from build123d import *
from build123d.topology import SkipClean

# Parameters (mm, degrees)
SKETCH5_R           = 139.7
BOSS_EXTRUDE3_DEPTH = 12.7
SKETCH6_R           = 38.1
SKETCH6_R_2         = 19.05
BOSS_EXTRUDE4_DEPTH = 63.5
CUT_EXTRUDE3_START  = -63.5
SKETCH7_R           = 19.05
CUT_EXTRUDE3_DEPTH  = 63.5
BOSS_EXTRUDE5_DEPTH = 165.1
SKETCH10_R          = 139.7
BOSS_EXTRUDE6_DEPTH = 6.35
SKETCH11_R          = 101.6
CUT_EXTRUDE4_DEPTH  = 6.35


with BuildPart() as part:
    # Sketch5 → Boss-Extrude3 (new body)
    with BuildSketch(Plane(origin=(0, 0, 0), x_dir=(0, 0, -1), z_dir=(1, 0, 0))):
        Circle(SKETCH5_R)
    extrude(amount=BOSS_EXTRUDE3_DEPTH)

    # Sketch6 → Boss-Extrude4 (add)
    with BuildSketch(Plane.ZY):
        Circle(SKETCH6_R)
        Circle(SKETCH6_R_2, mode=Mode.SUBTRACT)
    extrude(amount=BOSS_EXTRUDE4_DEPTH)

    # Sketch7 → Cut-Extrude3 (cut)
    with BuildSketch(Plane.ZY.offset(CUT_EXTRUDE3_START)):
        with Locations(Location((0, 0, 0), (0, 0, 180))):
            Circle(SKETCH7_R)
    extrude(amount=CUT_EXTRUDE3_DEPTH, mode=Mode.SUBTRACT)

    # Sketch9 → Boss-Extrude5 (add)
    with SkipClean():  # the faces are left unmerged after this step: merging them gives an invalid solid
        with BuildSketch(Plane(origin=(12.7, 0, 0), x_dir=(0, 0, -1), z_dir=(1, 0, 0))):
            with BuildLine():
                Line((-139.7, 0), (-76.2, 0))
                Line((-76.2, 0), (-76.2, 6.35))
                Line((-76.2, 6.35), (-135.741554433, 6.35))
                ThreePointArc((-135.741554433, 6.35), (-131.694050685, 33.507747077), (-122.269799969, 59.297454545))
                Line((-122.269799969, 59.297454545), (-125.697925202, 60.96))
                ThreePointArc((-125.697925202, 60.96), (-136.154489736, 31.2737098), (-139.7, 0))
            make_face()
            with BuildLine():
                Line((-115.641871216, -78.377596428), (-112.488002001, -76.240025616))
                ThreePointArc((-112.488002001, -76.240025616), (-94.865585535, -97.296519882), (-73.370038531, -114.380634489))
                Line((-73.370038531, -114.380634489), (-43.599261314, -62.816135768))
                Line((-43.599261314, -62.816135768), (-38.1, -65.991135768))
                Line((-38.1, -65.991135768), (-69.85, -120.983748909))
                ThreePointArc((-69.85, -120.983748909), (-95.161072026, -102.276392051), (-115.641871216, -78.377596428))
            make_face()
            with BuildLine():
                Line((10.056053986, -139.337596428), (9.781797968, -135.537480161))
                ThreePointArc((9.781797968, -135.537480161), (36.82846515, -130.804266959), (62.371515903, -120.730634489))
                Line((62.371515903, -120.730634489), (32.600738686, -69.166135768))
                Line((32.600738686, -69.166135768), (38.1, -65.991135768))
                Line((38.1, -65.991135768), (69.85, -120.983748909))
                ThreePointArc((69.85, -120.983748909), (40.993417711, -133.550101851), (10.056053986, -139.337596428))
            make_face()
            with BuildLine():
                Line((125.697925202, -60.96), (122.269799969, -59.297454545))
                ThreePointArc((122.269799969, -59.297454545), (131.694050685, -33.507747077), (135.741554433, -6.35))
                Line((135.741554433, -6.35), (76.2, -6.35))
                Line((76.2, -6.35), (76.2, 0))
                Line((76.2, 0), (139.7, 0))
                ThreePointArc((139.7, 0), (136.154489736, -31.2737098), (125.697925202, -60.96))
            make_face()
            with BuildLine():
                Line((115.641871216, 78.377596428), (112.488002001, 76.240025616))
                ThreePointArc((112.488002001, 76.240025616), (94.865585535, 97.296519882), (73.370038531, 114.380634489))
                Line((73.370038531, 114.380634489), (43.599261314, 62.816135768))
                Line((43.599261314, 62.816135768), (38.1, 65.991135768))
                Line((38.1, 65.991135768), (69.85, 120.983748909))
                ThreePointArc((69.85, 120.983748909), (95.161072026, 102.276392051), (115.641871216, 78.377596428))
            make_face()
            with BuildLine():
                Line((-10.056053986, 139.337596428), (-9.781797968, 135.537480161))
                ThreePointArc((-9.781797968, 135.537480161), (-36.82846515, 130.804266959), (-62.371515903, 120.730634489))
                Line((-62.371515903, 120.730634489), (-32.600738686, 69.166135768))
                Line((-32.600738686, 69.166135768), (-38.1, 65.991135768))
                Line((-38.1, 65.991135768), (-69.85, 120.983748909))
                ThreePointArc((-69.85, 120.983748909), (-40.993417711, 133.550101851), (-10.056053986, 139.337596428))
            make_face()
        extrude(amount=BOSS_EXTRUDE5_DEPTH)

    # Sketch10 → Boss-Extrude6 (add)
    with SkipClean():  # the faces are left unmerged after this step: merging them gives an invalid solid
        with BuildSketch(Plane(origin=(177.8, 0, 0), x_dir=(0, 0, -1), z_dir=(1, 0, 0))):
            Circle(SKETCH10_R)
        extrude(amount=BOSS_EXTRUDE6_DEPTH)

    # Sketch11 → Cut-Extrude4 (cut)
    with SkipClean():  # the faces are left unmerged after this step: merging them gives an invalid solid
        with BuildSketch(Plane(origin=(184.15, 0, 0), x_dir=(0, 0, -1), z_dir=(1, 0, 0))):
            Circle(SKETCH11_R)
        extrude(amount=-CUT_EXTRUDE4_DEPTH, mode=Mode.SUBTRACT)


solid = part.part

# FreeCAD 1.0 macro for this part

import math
import FreeCAD as App
import Part
import Sketcher
from FreeCAD import Vector
Q = App.Units.Quantity

doc = App.newDocument("Part")
body = doc.addObject("PartDesign::Body", "Body")

# Sketch on YZ plane
sketch1 = body.newObject("Sketcher::SketchObject", "Sketch")
sketch1.AttachmentSupport = (doc.getObject("YZ_Plane"), [""])
sketch1.MapMode = "FlatFace"
sketch1.addGeometry(Part.Circle(Vector(0, 0, 0), Vector(0, 0, 1), 140), False)
sketch1.addConstraint([
    Sketcher.Constraint("Coincident", 0, 3, -1, 1),
    Sketcher.Constraint("Diameter", 0, Q("11 in")),
])
pad1 = body.newObject("PartDesign::Pad", "Pad")
pad1.Profile = sketch1
pad1.Length = Q("0.5 in")

# Sketch on YZ plane
sketch2 = body.newObject("Sketcher::SketchObject", "Sketch001")
sketch2.AttachmentSupport = (doc.getObject("YZ_Plane"), [""])
sketch2.MapMode = "FlatFace"
sketch2.addGeometry([
    Part.Circle(Vector(0, 0, 0), Vector(0, 0, 1), 38),
    Part.Circle(Vector(0, 0, 0), Vector(0, 0, 1), 19),
], False)
sketch2.addConstraint([
    Sketcher.Constraint("Coincident", 0, 3, -1, 1),
    Sketcher.Constraint("Coincident", 1, 3, -1, 1),
    Sketcher.Constraint("Diameter", 0, Q("3 in")),
    Sketcher.Constraint("Diameter", 1, Q("1.5 in")),
])
pad2 = body.newObject("PartDesign::Pad", "Pad001")
pad2.Profile = sketch2
pad2.Length = Q("2.5 in")
pad2.Reversed = True

# Sketch on YZ plane
sketch3 = body.newObject("Sketcher::SketchObject", "Sketch002")
sketch3.AttachmentSupport = (doc.getObject("YZ_Plane"), [""])
sketch3.MapMode = "FlatFace"
sketch3.AttachmentOffset = App.Placement(Vector(0, 0, 2.5 * 25.4), App.Rotation())
sketch3.addGeometry(Part.Circle(Vector(0, 0, 0), Vector(0, 0, 1), 19), False)
sketch3.addConstraint([
    Sketcher.Constraint("Coincident", 0, 3, -1, 1),
    Sketcher.Constraint("Diameter", 0, Q("1.5 in")),
])
pocket1 = body.newObject("PartDesign::Pocket", "Pocket")
pocket1.Profile = sketch3
pocket1.Length = Q("2.5 in")

# Sketch on YZ plane
sketch4 = body.newObject("Sketcher::SketchObject", "Sketch003")
sketch4.AttachmentSupport = (doc.getObject("YZ_Plane"), [""])
sketch4.MapMode = "FlatFace"
sketch4.AttachmentOffset = App.Placement(Vector(0, 0, 0.5 * 25.4), App.Rotation())
sketch4.addGeometry([
    Part.LineSegment(Vector(0, 139.7, 0), Vector(0, 76.2, 0)),  # 0
    Part.LineSegment(Vector(0, 76.2, 0), Vector(6.3, 76.2, 0)),  # 1
    Part.LineSegment(Vector(6.3, 76.2, 0), Vector(6.3, 135.7, 0)),  # 2
    Part.ArcOfCircle(Part.Circle(Vector(0, 0, 0), Vector(0, 0, 1), 135.9), math.radians(64), math.radians(87)),  # 3
    Part.LineSegment(Vector(59.3, 122.3, 0), Vector(61, 125.7, 0)),  # 4
    Part.ArcOfCircle(Part.Circle(Vector(0, 0, 0), Vector(0, 0, 1), 139.7), math.radians(64), math.radians(90)),  # 5
    Part.LineSegment(Vector(-76.2, 112.5, 0), Vector(-78.4, 115.6, 0)),  # 6
    Part.ArcOfCircle(Part.Circle(Vector(0, 0, 0), Vector(0, 0, 1), 139.7), math.radians(124), math.radians(150)),  # 7
    Part.LineSegment(Vector(-121, 69.8, 0), Vector(-66, 38.1, 0)),  # 8
    Part.LineSegment(Vector(-66, 38.1, 0), Vector(-62.8, 43.6, 0)),  # 9
    Part.LineSegment(Vector(-62.8, 43.6, 0), Vector(-114.4, 73.4, 0)),  # 10
    Part.ArcOfCircle(Part.Circle(Vector(0, 0, 0), Vector(0, 0, 1), 135.9), math.radians(124), math.radians(147)),  # 11
    Part.LineSegment(Vector(-135.5, -9.8, 0), Vector(-139.3, -10.1, 0)),  # 12
    Part.ArcOfCircle(Part.Circle(Vector(0, 0, 0), Vector(0, 0, 1), 139.7), math.radians(-176), math.radians(-150)),  # 13
    Part.LineSegment(Vector(-121, -69.8, 0), Vector(-66, -38.1, 0)),  # 14
    Part.LineSegment(Vector(-66, -38.1, 0), Vector(-69.2, -32.6, 0)),  # 15
    Part.LineSegment(Vector(-69.2, -32.6, 0), Vector(-120.7, -62.4, 0)),  # 16
    Part.ArcOfCircle(Part.Circle(Vector(0, 0, 0), Vector(0, 0, 1), 135.9), math.radians(-176), math.radians(-153)),  # 17
    Part.LineSegment(Vector(-59.3, -122.3, 0), Vector(-61, -125.7, 0)),  # 18
    Part.ArcOfCircle(Part.Circle(Vector(0, 0, 0), Vector(0, 0, 1), 139.7), math.radians(-116), math.radians(-90)),  # 19
    Part.LineSegment(Vector(0, -139.7, 0), Vector(0, -76.2, 0)),  # 20
    Part.LineSegment(Vector(0, -76.2, 0), Vector(-6.3, -76.2, 0)),  # 21
    Part.LineSegment(Vector(-6.3, -76.2, 0), Vector(-6.3, -135.7, 0)),  # 22
    Part.ArcOfCircle(Part.Circle(Vector(0, 0, 0), Vector(0, 0, 1), 135.9), math.radians(-116), math.radians(-93)),  # 23
    Part.LineSegment(Vector(76.2, -112.5, 0), Vector(78.4, -115.6, 0)),  # 24
    Part.ArcOfCircle(Part.Circle(Vector(0, 0, 0), Vector(0, 0, 1), 139.7), math.radians(-56), math.radians(-30)),  # 25
    Part.LineSegment(Vector(121, -69.8, 0), Vector(66, -38.1, 0)),  # 26
    Part.LineSegment(Vector(66, -38.1, 0), Vector(62.8, -43.6, 0)),  # 27
    Part.LineSegment(Vector(62.8, -43.6, 0), Vector(114.4, -73.4, 0)),  # 28
    Part.ArcOfCircle(Part.Circle(Vector(0, 0, 0), Vector(0, 0, 1), 135.9), math.radians(-56), math.radians(-33)),  # 29
    Part.LineSegment(Vector(135.5, 9.8, 0), Vector(139.3, 10.1, 0)),  # 30
    Part.ArcOfCircle(Part.Circle(Vector(0, 0, 0), Vector(0, 0, 1), 139.7), math.radians(4), math.radians(30)),  # 31
    Part.LineSegment(Vector(121, 69.8, 0), Vector(66, 38.1, 0)),  # 32
    Part.LineSegment(Vector(66, 38.1, 0), Vector(69.2, 32.6, 0)),  # 33
    Part.LineSegment(Vector(69.2, 32.6, 0), Vector(120.7, 62.4, 0)),  # 34
    Part.ArcOfCircle(Part.Circle(Vector(0, 0, 0), Vector(0, 0, 1), 135.9), math.radians(4), math.radians(27)),  # 35
], False)
sketch4.addConstraint([
    Sketcher.Constraint("Coincident", 0, 2, 1, 1),
    Sketcher.Constraint("Coincident", 1, 2, 2, 1),
    Sketcher.Constraint("Coincident", 2, 2, 3, 2),
    Sketcher.Constraint("Coincident", 3, 1, 4, 1),
    Sketcher.Constraint("Coincident", 4, 2, 5, 1),
    Sketcher.Constraint("Coincident", 5, 2, 0, 1),
    Sketcher.Constraint("Coincident", 6, 2, 7, 1),
    Sketcher.Constraint("Coincident", 7, 2, 8, 1),
    Sketcher.Constraint("Coincident", 8, 2, 9, 1),
    Sketcher.Constraint("Coincident", 9, 2, 10, 1),
    Sketcher.Constraint("Coincident", 10, 2, 11, 2),
    Sketcher.Constraint("Coincident", 11, 1, 6, 1),
    Sketcher.Constraint("Coincident", 12, 2, 13, 1),
    Sketcher.Constraint("Coincident", 13, 2, 14, 1),
    Sketcher.Constraint("Coincident", 14, 2, 15, 1),
    Sketcher.Constraint("Coincident", 15, 2, 16, 1),
    Sketcher.Constraint("Coincident", 16, 2, 17, 2),
    Sketcher.Constraint("Coincident", 17, 1, 12, 1),
    Sketcher.Constraint("Coincident", 18, 2, 19, 1),
    Sketcher.Constraint("Coincident", 19, 2, 20, 1),
    Sketcher.Constraint("Coincident", 20, 2, 21, 1),
    Sketcher.Constraint("Coincident", 21, 2, 22, 1),
    Sketcher.Constraint("Coincident", 22, 2, 23, 2),
    Sketcher.Constraint("Coincident", 23, 1, 18, 1),
    Sketcher.Constraint("Coincident", 24, 2, 25, 1),
    Sketcher.Constraint("Coincident", 25, 2, 26, 1),
    Sketcher.Constraint("Coincident", 26, 2, 27, 1),
    Sketcher.Constraint("Coincident", 27, 2, 28, 1),
    Sketcher.Constraint("Coincident", 28, 2, 29, 2),
    Sketcher.Constraint("Coincident", 29, 1, 24, 1),
    Sketcher.Constraint("Coincident", 30, 2, 31, 1),
    Sketcher.Constraint("Coincident", 31, 2, 32, 1),
    Sketcher.Constraint("Coincident", 32, 2, 33, 1),
    Sketcher.Constraint("Coincident", 33, 2, 34, 1),
    Sketcher.Constraint("Coincident", 34, 2, 35, 2),
    Sketcher.Constraint("Coincident", 35, 1, 30, 1),
    Sketcher.Constraint("Vertical", 0),
    Sketcher.Constraint("Horizontal", 1),
    Sketcher.Constraint("Vertical", 2),
    Sketcher.Constraint("Vertical", 20),
    Sketcher.Constraint("Horizontal", 21),
    Sketcher.Constraint("Vertical", 22),
    Sketcher.Constraint("Coincident", 3, 3, -1, 1),
    Sketcher.Constraint("Coincident", 5, 3, -1, 1),
    Sketcher.Constraint("Coincident", 7, 3, -1, 1),
    Sketcher.Constraint("Coincident", 11, 3, -1, 1),
    Sketcher.Constraint("Coincident", 13, 3, -1, 1),
    Sketcher.Constraint("Coincident", 17, 3, -1, 1),
    Sketcher.Constraint("Coincident", 19, 3, -1, 1),
    Sketcher.Constraint("Coincident", 23, 3, -1, 1),
    Sketcher.Constraint("Coincident", 25, 3, -1, 1),
    Sketcher.Constraint("Coincident", 29, 3, -1, 1),
    Sketcher.Constraint("Coincident", 31, 3, -1, 1),
    Sketcher.Constraint("Coincident", 35, 3, -1, 1),
    Sketcher.Constraint("Equal", 5, 7),
    Sketcher.Constraint("Equal", 3, 11),
    Sketcher.Constraint("Equal", 7, 13),
    Sketcher.Constraint("Equal", 11, 17),
    Sketcher.Constraint("Equal", 13, 19),
    Sketcher.Constraint("Equal", 17, 23),
    Sketcher.Constraint("Equal", 19, 25),
    Sketcher.Constraint("Equal", 23, 29),
    Sketcher.Constraint("Equal", 25, 31),
    Sketcher.Constraint("Equal", 29, 35),
    Sketcher.Constraint("Symmetric", 0, 2, 20, 2, -1, 1),
    Sketcher.Constraint("Symmetric", 8, 2, 26, 2, -1, 1),
    Sketcher.Constraint("Symmetric", 9, 2, 27, 2, -1, 1),
    Sketcher.Constraint("Symmetric", 14, 2, 32, 2, -1, 1),
    Sketcher.Constraint("Symmetric", 15, 2, 33, 2, -1, 1),
    Sketcher.Constraint("Symmetric", 14, 2, 26, 2, -2),
    Sketcher.Constraint("PointOnObject", 0, 2, -2),
    Sketcher.Constraint("Perpendicular", 8, 9),
    Sketcher.Constraint("Perpendicular", 9, 10),
    Sketcher.Constraint("Perpendicular", 14, 15),
    Sketcher.Constraint("Perpendicular", 15, 16),
    Sketcher.Constraint("Parallel", 4, 18),
    Sketcher.Constraint("Parallel", 6, 24),
    Sketcher.Constraint("Parallel", 10, 26),
    Sketcher.Constraint("Perpendicular", 27, 28),
    Sketcher.Constraint("Parallel", 12, 30),
    Sketcher.Constraint("Parallel", 16, 32),
    Sketcher.Constraint("Perpendicular", 33, 34),
    Sketcher.Constraint("Horizontal", 13, 2, 25, 2),
    Sketcher.Constraint("Equal", 1, 21),
    Sketcher.Constraint("Equal", 9, 15),
    Sketcher.Constraint("Equal", 10, 16),
    Sketcher.Constraint("Radius", 5, Q("5.5 in")),
    Sketcher.Constraint("Radius", 3, Q("5.35 in")),
    Sketcher.Constraint("DistanceY", 0, 2, 0, 1, Q("2.5 in")),
    Sketcher.Constraint("Angle", 8, Q("-30 deg")),
    Sketcher.Constraint("DistanceY", 19, 2, 14, 2, Q("4 in")),
    Sketcher.Constraint("DistanceX", 1, 1, 1, 2, Q("0.25 in")),
    Sketcher.Constraint("DistanceX", -1, 1, 4, 2, Q("2.4 in")),
    Sketcher.Constraint("DistanceX", 18, 2, -1, 1, Q("2.4 in")),
    Sketcher.Constraint("Distance", 9, Q("0.25 in")),
    Sketcher.Constraint("DistanceY", 34, 2, 3, 1, Q("2.3582002 in")),
    Sketcher.Constraint("DistanceY", -1, 1, 6, 2, Q("115.641871 mm")),
    Sketcher.Constraint("DistanceX", 17, 1, -1, 1, Q("135.53748 mm")),
    Sketcher.Constraint("DistanceY", 24, 2, -1, 1, Q("115.641871 mm")),
    Sketcher.Constraint("DistanceX", -1, 1, 35, 1, Q("135.53748 mm")),
    Sketcher.Constraint("DistanceX", 6, 2, 11, 1, Q("2.137571 mm")),
    Sketcher.Constraint("DistanceX", 12, 2, 10, 2, Q("24.956962 mm")),
])
pad3 = body.newObject("PartDesign::Pad", "Pad002")
pad3.Profile = sketch4
pad3.Length = Q("6.5 in")

# Sketch on YZ plane
sketch5 = body.newObject("Sketcher::SketchObject", "Sketch004")
sketch5.AttachmentSupport = (doc.getObject("YZ_Plane"), [""])
sketch5.MapMode = "FlatFace"
sketch5.AttachmentOffset = App.Placement(Vector(0, 0, 7 * 25.4), App.Rotation())
sketch5.addGeometry(Part.Circle(Vector(0, 0, 0), Vector(0, 0, 1), 140), False)
sketch5.addConstraint([
    Sketcher.Constraint("Coincident", 0, 3, -1, 1),
    Sketcher.Constraint("Diameter", 0, Q("11 in")),
])
pad4 = body.newObject("PartDesign::Pad", "Pad003")
pad4.Profile = sketch5
pad4.Length = Q("0.25 in")

# Sketch on YZ plane
sketch6 = body.newObject("Sketcher::SketchObject", "Sketch005")
sketch6.AttachmentSupport = (doc.getObject("YZ_Plane"), [""])
sketch6.MapMode = "FlatFace"
sketch6.AttachmentOffset = App.Placement(Vector(0, 0, 7.25 * 25.4), App.Rotation())
sketch6.addGeometry(Part.Circle(Vector(0, 0, 0), Vector(0, 0, 1), 102), False)
sketch6.addConstraint([
    Sketcher.Constraint("Coincident", 0, 3, -1, 1),
    Sketcher.Constraint("Diameter", 0, Q("8 in")),
])
pocket2 = body.newObject("PartDesign::Pocket", "Pocket001")
pocket2.Profile = sketch6
pocket2.Length = Q("0.25 in")

doc.recompute()
